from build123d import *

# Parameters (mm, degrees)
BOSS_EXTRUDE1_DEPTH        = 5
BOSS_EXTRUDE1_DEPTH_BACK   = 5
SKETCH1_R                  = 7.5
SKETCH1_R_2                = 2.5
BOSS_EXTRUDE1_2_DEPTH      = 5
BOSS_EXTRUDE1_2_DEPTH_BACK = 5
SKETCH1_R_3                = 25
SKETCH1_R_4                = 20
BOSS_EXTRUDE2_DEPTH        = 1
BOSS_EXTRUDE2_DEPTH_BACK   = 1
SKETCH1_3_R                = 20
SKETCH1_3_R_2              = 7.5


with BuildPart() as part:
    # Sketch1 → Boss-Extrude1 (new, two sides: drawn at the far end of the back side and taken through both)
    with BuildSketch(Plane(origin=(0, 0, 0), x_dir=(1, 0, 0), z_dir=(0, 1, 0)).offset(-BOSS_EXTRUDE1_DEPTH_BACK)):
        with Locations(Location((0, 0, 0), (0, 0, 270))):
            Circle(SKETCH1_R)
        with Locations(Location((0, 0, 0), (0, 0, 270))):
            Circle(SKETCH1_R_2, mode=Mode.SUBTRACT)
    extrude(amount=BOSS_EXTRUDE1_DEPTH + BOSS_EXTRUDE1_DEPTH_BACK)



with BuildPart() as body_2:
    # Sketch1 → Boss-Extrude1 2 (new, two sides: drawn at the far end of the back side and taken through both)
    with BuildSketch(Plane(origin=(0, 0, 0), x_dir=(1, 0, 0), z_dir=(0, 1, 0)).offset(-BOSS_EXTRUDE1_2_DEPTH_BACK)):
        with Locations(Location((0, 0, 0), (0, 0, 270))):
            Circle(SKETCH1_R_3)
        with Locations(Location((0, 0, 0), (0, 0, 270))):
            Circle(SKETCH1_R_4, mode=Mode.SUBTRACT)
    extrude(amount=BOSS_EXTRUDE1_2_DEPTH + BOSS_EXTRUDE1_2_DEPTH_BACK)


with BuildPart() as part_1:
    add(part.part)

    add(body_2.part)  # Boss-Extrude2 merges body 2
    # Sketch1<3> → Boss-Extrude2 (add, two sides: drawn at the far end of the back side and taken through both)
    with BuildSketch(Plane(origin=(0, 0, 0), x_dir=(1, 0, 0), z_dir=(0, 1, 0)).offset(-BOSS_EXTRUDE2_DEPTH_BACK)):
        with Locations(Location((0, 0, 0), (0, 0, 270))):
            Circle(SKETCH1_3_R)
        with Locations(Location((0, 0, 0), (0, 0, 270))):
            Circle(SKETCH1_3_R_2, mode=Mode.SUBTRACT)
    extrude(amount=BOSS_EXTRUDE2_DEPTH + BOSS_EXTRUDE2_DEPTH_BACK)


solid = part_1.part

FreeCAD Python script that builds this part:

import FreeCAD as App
import Part
import Sketcher
from FreeCAD import Vector

doc = App.newDocument("Part")
body = doc.addObject("PartDesign::Body", "Body")

sketch1 = doc.addObject("Sketcher::SketchObject", "Sketch")
body.addObject(sketch1)
sketch1.AttachmentSupport = (doc.XZ_Plane, [""])
sketch1.MapMode = "FlatFace"
sketch1.addGeometry([
    Part.Circle(Vector(0, 0, 0), Vector(0, 0, 1), 7.5),
    Part.Circle(Vector(0, 0, 0), Vector(0, 0, 1), 2.5),
], False)
sketch1.addConstraint([
    Sketcher.Constraint("Coincident", 0, 3, -1, 1),
    Sketcher.Constraint("Coincident", 1, 3, -1, 1),
    Sketcher.Constraint("Diameter", 0, 15.0),
    Sketcher.Constraint("Diameter", 1, 5.0),
])
pad1 = doc.addObject("PartDesign::Pad", "Pad")
body.addObject(pad1)
pad1.Profile = sketch1
pad1.Type = "TwoLengths"
pad1.Length = 5
pad1.Length2 = 5
pad1.Reversed = True
body2 = doc.addObject("PartDesign::Body", "Body001")

sketch2 = doc.addObject("Sketcher::SketchObject", "Sketch001")
body2.addObject(sketch2)
sketch2.AttachmentSupport = (doc.getObject("XZ_Plane001"), [""])
sketch2.MapMode = "FlatFace"
sketch2.addGeometry([
    Part.Circle(Vector(0, 0, 0), Vector(0, 0, 1), 25),
    Part.Circle(Vector(0, 0, 0), Vector(0, 0, 1), 20),
], False)
sketch2.addConstraint([
    Sketcher.Constraint("Coincident", 0, 3, -1, 1),
    Sketcher.Constraint("Coincident", 1, 3, -1, 1),
    Sketcher.Constraint("Diameter", 0, 50.0),
    Sketcher.Constraint("Diameter", 1, 40.0),
])
pad2 = doc.addObject("PartDesign::Pad", "Pad001")
body2.addObject(pad2)
pad2.Profile = sketch2
pad2.Type = "TwoLengths"
pad2.Length = 5
pad2.Length2 = 5
pad2.Reversed = True
body.AllowCompound = True
doc.recompute()

boolean = doc.addObject("PartDesign::Boolean", "Boolean")
body.addObject(boolean)
boolean.Type = "Fuse"
boolean.addObjects([body2])

sketch3 = doc.addObject("Sketcher::SketchObject", "Sketch002")
body.addObject(sketch3)
sketch3.AttachmentSupport = (doc.XZ_Plane, [""])
sketch3.MapMode = "FlatFace"
sketch3.addGeometry([
    Part.Circle(Vector(0, 0, 0), Vector(0, 0, 1), 20),
    Part.Circle(Vector(0, 0, 0), Vector(0, 0, 1), 8),
], False)
sketch3.addConstraint([
    Sketcher.Constraint("Coincident", 0, 3, -1, 1),
    Sketcher.Constraint("Coincident", 1, 3, -1, 1),
    Sketcher.Constraint("Diameter", 0, 40.0),
    Sketcher.Constraint("Diameter", 1, 15.0),
])
pad3 = doc.addObject("PartDesign::Pad", "Pad002")
body.addObject(pad3)
pad3.Profile = sketch3
pad3.Type = "TwoLengths"
pad3.Length = 1
pad3.Length2 = 1
pad3.Reversed = True

doc.recompute()
